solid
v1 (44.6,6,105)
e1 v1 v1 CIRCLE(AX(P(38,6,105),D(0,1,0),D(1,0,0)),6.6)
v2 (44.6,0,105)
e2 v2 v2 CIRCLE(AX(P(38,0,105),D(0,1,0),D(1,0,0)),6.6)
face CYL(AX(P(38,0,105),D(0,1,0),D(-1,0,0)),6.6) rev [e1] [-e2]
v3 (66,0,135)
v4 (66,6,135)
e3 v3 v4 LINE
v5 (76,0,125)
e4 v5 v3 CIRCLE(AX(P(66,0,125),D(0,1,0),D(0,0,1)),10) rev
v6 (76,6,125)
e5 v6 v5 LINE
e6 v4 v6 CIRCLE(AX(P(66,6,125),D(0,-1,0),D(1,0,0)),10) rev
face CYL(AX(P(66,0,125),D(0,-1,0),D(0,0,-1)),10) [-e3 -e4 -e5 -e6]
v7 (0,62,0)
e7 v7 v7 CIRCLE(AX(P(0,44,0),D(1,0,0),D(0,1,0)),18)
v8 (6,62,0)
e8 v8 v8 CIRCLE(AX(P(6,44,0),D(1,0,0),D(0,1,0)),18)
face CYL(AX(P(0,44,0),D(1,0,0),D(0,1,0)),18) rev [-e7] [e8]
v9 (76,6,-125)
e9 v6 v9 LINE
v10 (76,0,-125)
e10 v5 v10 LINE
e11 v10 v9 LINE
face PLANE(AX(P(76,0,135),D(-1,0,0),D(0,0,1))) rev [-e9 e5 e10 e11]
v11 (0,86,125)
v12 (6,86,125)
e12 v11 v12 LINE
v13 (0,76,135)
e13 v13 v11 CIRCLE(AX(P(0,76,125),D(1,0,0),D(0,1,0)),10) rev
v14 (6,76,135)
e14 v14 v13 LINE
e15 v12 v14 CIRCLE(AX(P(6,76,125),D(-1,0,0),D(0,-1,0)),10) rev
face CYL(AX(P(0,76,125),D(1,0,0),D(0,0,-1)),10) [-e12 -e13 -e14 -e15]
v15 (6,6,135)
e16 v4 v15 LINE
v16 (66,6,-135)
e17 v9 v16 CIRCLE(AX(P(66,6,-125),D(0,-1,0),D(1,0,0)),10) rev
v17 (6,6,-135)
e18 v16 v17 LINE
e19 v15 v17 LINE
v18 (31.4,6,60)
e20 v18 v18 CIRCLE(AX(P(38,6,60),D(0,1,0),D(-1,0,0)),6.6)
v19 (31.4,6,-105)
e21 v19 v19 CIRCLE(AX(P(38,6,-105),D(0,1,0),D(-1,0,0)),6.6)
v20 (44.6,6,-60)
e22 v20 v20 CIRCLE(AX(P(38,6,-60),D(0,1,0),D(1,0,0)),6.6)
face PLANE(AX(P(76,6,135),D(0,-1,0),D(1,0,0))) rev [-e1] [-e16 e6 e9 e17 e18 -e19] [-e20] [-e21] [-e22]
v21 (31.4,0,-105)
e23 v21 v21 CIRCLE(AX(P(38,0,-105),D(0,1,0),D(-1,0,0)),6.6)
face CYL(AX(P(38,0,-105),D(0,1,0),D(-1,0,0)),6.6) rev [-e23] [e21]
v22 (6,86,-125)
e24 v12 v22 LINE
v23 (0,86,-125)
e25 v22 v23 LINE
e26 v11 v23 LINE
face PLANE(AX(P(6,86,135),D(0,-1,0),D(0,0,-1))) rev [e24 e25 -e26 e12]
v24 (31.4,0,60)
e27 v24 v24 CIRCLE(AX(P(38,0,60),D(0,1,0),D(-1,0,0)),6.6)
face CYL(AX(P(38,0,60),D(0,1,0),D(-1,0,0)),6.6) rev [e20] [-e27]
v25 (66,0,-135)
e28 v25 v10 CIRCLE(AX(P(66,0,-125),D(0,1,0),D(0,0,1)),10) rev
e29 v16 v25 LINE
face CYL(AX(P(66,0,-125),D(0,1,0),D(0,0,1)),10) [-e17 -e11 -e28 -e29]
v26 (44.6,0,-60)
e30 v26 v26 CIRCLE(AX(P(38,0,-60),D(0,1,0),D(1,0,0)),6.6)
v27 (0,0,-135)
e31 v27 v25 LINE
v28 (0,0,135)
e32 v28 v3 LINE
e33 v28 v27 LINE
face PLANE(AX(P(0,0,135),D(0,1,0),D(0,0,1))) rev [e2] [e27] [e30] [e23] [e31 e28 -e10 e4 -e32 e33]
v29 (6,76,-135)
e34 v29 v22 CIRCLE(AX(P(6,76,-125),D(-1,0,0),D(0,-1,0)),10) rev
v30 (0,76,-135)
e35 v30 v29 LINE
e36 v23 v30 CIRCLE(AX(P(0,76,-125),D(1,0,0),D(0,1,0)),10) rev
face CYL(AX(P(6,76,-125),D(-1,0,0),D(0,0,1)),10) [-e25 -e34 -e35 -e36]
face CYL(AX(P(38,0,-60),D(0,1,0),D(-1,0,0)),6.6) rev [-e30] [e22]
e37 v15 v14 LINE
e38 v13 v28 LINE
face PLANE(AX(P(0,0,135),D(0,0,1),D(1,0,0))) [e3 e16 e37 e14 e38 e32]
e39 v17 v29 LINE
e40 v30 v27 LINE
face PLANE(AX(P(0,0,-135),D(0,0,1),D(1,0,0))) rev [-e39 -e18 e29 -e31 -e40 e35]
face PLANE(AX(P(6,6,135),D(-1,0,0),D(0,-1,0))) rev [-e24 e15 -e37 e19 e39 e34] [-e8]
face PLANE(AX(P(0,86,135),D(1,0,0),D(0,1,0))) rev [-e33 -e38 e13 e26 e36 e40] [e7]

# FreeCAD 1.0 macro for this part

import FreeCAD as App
import Part
import Sketcher


def edges_at(feature, points):
    """Names of the edges that pass closest to the given points."""
    edges = feature.Shape.Edges
    near = lambda p: min(range(len(edges)), key=lambda i: edges[i].distToShape(Part.Vertex(*p))[0])
    return sorted({f"Edge{near(p) + 1}" for p in points})


def add_polygon(sketch, points):
    """Adds a closed chain of lines whose ends are joined by coincident constraints."""
    first, n = sketch.GeometryCount, len(points)
    for a, b in zip(points, points[1:] + points[:1]):
        sketch.addGeometry(Part.LineSegment(App.Vector(*a, 0), App.Vector(*b, 0)), False)
    for i in range(n):
        sketch.addConstraint(Sketcher.Constraint("Coincident", first + i, 2, first + (i + 1) % n, 1))

doc = App.newDocument("Part")
body = doc.addObject("PartDesign::Body", "Body")

# Sketch on XY plane
sketch1 = doc.addObject("Sketcher::SketchObject", "Sketch")
body.addObject(sketch1)
sketch1.AttachmentSupport = (doc.XY_Plane, [""])
sketch1.MapMode = "FlatFace"
add_polygon(sketch1, [(0, 0), (76, 0), (76, 6), (6, 6), (6, 86), (0, 86)])  # lines 0-5
sketch1.addConstraint(Sketcher.Constraint("Horizontal", 0))
sketch1.addConstraint(Sketcher.Constraint("Vertical", 1))
sketch1.addConstraint(Sketcher.Constraint("Horizontal", 2))
sketch1.addConstraint(Sketcher.Constraint("Vertical", 3))
sketch1.addConstraint(Sketcher.Constraint("Horizontal", 4))
sketch1.addConstraint(Sketcher.Constraint("Vertical", 5))
sketch1.addConstraint(Sketcher.Constraint("Coincident", 5, 2, -1, 1))
sketch1.addConstraint(Sketcher.Constraint("Equal", 4, 1))
sketch1.addConstraint(Sketcher.Constraint("DistanceX", 0, 1, 0, 2, 76.0))
sketch1.addConstraint(Sketcher.Constraint("DistanceX", 2, 2, 2, 1, 70.0))
sketch1.addConstraint(Sketcher.Constraint("DistanceY", 3, 1, 3, 2, 80.0))
pad1 = doc.addObject("PartDesign::Pad", "Pad")
body.addObject(pad1)
pad1.Profile = sketch1
pad1.Length = 270
pad1.Midplane = True

# Sketch on YZ plane
sketch2 = doc.addObject("Sketcher::SketchObject", "Sketch001")
body.addObject(sketch2)
sketch2.AttachmentSupport = (doc.YZ_Plane, [""])
sketch2.MapMode = "FlatFace"
sketch2.AttachmentOffset = App.Placement(App.Vector(0, 0, 6), App.Rotation())
sketch2.addGeometry(Part.Circle(App.Vector(44, 0, 0), App.Vector(0, 0, 1), 18), False)
sketch2.addConstraint(Sketcher.Constraint("PointOnObject", 0, 3, -1))
sketch2.addConstraint(Sketcher.Constraint("Diameter", 0, 36.0))
sketch2.addConstraint(Sketcher.Constraint("DistanceX", -1, 1, 0, 3, 44.0))
pocket1 = doc.addObject("PartDesign::Pocket", "Pocket")
body.addObject(pocket1)
pocket1.Profile = sketch2
pocket1.Type = "ThroughAll"

# Sketch on XZ plane
sketch3 = doc.addObject("Sketcher::SketchObject", "Sketch002")
body.addObject(sketch3)
sketch3.AttachmentSupport = (doc.XZ_Plane, [""])
sketch3.MapMode = "FlatFace"
sketch3.AttachmentOffset = App.Placement(App.Vector(0, 0, -6), App.Rotation())
sketch3.addGeometry(Part.Circle(App.Vector(38, -105, 0), App.Vector(0, 0, 1), 6.6), False)
sketch3.addGeometry(Part.Circle(App.Vector(38, -60, 0), App.Vector(0, 0, 1), 6.6), False)
sketch3.addGeometry(Part.Circle(App.Vector(38, 60, 0), App.Vector(0, 0, 1), 6.6), False)
sketch3.addGeometry(Part.Circle(App.Vector(38, 105, 0), App.Vector(0, 0, 1), 6.6), False)
sketch3.addConstraint(Sketcher.Constraint("Equal", 0, 1))
sketch3.addConstraint(Sketcher.Constraint("Equal", 1, 2))
sketch3.addConstraint(Sketcher.Constraint("Equal", 2, 3))
sketch3.addConstraint(Sketcher.Constraint("Symmetric", 1, 3, 2, 3, -1))
sketch3.addConstraint(Sketcher.Constraint("Symmetric", 0, 3, 3, 3, -1))
sketch3.addConstraint(Sketcher.Constraint("Vertical", 0, 3, 1, 3))
sketch3.addConstraint(Sketcher.Constraint("Diameter", 0, 13.2))
sketch3.addConstraint(Sketcher.Constraint("DistanceX", -1, 1, 0, 3, 38.0))
sketch3.addConstraint(Sketcher.Constraint("DistanceY", 0, 3, -1, 1, 105.0))
sketch3.addConstraint(Sketcher.Constraint("DistanceY", 1, 3, -1, 1, 60.0))
pocket2 = doc.addObject("PartDesign::Pocket", "Pocket001")
body.addObject(pocket2)
pocket2.Profile = sketch3
pocket2.Type = "ThroughAll"
pocket2.Reversed = True
doc.recompute()

fillet = doc.addObject("PartDesign::Fillet", "Fillet")
body.addObject(fillet)
fillet.Base = (pocket2, edges_at(pocket2, [
    (76, 3, 135),
    (3, 86, 135),
    (3, 86, -135),
    (76, 3, -135),
]))
fillet.Radius = 10

doc.recompute()
